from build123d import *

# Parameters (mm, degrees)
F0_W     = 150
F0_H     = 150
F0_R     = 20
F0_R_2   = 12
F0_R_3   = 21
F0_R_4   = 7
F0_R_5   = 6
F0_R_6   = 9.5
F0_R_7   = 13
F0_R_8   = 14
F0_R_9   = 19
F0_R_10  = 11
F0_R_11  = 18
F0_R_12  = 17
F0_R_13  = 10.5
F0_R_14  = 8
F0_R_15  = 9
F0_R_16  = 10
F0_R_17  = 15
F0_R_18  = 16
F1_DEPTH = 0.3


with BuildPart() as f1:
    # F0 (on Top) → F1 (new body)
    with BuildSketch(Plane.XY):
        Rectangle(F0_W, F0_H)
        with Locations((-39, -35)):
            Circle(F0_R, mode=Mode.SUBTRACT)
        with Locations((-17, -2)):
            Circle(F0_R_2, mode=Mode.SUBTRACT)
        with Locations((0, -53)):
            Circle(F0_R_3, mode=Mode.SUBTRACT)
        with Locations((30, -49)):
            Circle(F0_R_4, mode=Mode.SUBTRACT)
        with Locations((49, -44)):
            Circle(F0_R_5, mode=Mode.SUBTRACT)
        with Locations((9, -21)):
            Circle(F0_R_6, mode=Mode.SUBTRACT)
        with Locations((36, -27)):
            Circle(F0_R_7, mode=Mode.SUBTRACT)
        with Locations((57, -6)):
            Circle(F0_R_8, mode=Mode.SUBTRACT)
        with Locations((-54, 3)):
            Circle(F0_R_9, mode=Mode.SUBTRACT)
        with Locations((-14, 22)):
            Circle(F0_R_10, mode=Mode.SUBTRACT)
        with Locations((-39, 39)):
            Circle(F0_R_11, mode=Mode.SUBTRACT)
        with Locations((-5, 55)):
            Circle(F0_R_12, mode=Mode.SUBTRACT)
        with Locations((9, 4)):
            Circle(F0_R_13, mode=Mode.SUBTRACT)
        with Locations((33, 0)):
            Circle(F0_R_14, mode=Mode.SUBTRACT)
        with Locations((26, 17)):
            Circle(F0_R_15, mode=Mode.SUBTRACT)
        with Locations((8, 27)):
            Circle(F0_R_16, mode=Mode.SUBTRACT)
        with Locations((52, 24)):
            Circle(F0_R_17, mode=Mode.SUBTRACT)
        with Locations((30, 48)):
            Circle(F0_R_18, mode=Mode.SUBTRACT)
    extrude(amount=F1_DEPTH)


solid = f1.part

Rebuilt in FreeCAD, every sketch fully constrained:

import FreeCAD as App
import Part
import Sketcher
from FreeCAD import Vector
Q = App.Units.Quantity

doc = App.newDocument("Part")
body = doc.addObject("PartDesign::Body", "Body")

# Sketch on XY plane
sketch1 = doc.addObject("Sketcher::SketchObject", "Sketch")
body.addObject(sketch1)
sketch1.AttachmentSupport = (doc.XY_Plane, [""])
sketch1.MapMode = "FlatFace"
sketch1.addGeometry([
    Part.LineSegment(Vector(-75, 75, 0), Vector(-75, -75, 0)),  # 0
    Part.LineSegment(Vector(-75, -75, 0), Vector(75, -75, 0)),  # 1
    Part.LineSegment(Vector(75, -75, 0), Vector(75, 75, 0)),  # 2
    Part.LineSegment(Vector(75, 75, 0), Vector(-75, 75, 0)),  # 3
    Part.Circle(Vector(-39, -35, 0), Vector(0, 0, 1), 20),  # 4
    Part.Circle(Vector(-17, -2, 0), Vector(0, 0, 1), 12),  # 5
    Part.Circle(Vector(0, -53, 0), Vector(0, 0, 1), 21),  # 6
    Part.Circle(Vector(30, -49, 0), Vector(0, 0, 1), 7),  # 7
    Part.Circle(Vector(49, -44, 0), Vector(0, 0, 1), 6),  # 8
    Part.Circle(Vector(9, -21, 0), Vector(0, 0, 1), 9.5),  # 9
    Part.Circle(Vector(36, -27, 0), Vector(0, 0, 1), 13),  # 10
    Part.Circle(Vector(57, -6, 0), Vector(0, 0, 1), 14),  # 11
    Part.Circle(Vector(-54, 3, 0), Vector(0, 0, 1), 19),  # 12
    Part.Circle(Vector(-14, 22, 0), Vector(0, 0, 1), 11),  # 13
    Part.Circle(Vector(-39, 39, 0), Vector(0, 0, 1), 18),  # 14
    Part.Circle(Vector(-5, 55, 0), Vector(0, 0, 1), 17),  # 15
    Part.Circle(Vector(9, 4, 0), Vector(0, 0, 1), 10.5),  # 16
    Part.Circle(Vector(33, 0, 0), Vector(0, 0, 1), 8),  # 17
    Part.Circle(Vector(26, 17, 0), Vector(0, 0, 1), 9),  # 18
    Part.Circle(Vector(8, 27, 0), Vector(0, 0, 1), 10),  # 19
    Part.Circle(Vector(52, 24, 0), Vector(0, 0, 1), 15),  # 20
    Part.Circle(Vector(30, 48, 0), Vector(0, 0, 1), 16),  # 21
], False)
sketch1.addConstraint([
    Sketcher.Constraint("Coincident", 0, 2, 1, 1),
    Sketcher.Constraint("Coincident", 1, 2, 2, 1),
    Sketcher.Constraint("Coincident", 2, 2, 3, 1),
    Sketcher.Constraint("Coincident", 3, 2, 0, 1),
    Sketcher.Constraint("Vertical", 0),
    Sketcher.Constraint("Horizontal", 1),
    Sketcher.Constraint("Vertical", 2),
    Sketcher.Constraint("Horizontal", 3),
    Sketcher.Constraint("Symmetric", 0, 2, 2, 2, -1, 1),
    Sketcher.Constraint("PointOnObject", 6, 3, -2),
    Sketcher.Constraint("PointOnObject", 17, 3, -1),
    Sketcher.Constraint("Vertical", 4, 3, 14, 3),
    Sketcher.Constraint("Vertical", 9, 3, 16, 3),
    Sketcher.Constraint("Vertical", 7, 3, 21, 3),
    Sketcher.Constraint("Equal", 3, 0),
    Sketcher.Constraint("Diameter", 4, Q("40 mm")),
    Sketcher.Constraint("Diameter", 5, Q("24 mm")),
    Sketcher.Constraint("Diameter", 6, Q("42 mm")),
    Sketcher.Constraint("Diameter", 7, Q("14 mm")),
    Sketcher.Constraint("Diameter", 8, Q("12 mm")),
    Sketcher.Constraint("Diameter", 9, Q("19 mm")),
    Sketcher.Constraint("Diameter", 10, Q("26 mm")),
    Sketcher.Constraint("Diameter", 11, Q("28 mm")),
    Sketcher.Constraint("Diameter", 12, Q("38 mm")),
    Sketcher.Constraint("Diameter", 13, Q("22 mm")),
    Sketcher.Constraint("Diameter", 14, Q("36 mm")),
    Sketcher.Constraint("Diameter", 15, Q("34 mm")),
    Sketcher.Constraint("Diameter", 16, Q("21 mm")),
    Sketcher.Constraint("Diameter", 17, Q("16 mm")),
    Sketcher.Constraint("Diameter", 18, Q("18 mm")),
    Sketcher.Constraint("Diameter", 19, Q("20 mm")),
    Sketcher.Constraint("Diameter", 20, Q("30 mm")),
    Sketcher.Constraint("Diameter", 21, Q("32 mm")),
    Sketcher.Constraint("DistanceX", 1, 1, 1, 2, Q("150 mm")),
    Sketcher.Constraint("DistanceX", 4, 3, -1, 1, Q("39 mm")),
    Sketcher.Constraint("DistanceY", 4, 3, -1, 1, Q("35 mm")),
    Sketcher.Constraint("DistanceX", 5, 3, -1, 1, Q("17 mm")),
    Sketcher.Constraint("DistanceY", 5, 3, -1, 1, Q("2 mm")),
    Sketcher.Constraint("DistanceY", 6, 3, -1, 1, Q("53 mm")),
    Sketcher.Constraint("DistanceX", -1, 1, 7, 3, Q("30 mm")),
    Sketcher.Constraint("DistanceY", 7, 3, -1, 1, Q("49 mm")),
    Sketcher.Constraint("DistanceX", -1, 1, 8, 3, Q("49 mm")),
    Sketcher.Constraint("DistanceY", 8, 3, -1, 1, Q("44 mm")),
    Sketcher.Constraint("DistanceX", -1, 1, 9, 3, Q("9 mm")),
    Sketcher.Constraint("DistanceY", 9, 3, -1, 1, Q("21 mm")),
    Sketcher.Constraint("DistanceX", -1, 1, 10, 3, Q("36 mm")),
    Sketcher.Constraint("DistanceY", 10, 3, -1, 1, Q("27 mm")),
    Sketcher.Constraint("DistanceX", -1, 1, 11, 3, Q("57 mm")),
    Sketcher.Constraint("DistanceY", 11, 3, -1, 1, Q("6 mm")),
    Sketcher.Constraint("DistanceX", 12, 3, -1, 1, Q("54 mm")),
    Sketcher.Constraint("DistanceY", -1, 1, 12, 3, Q("3 mm")),
    Sketcher.Constraint("DistanceX", 13, 3, -1, 1, Q("14 mm")),
    Sketcher.Constraint("DistanceY", -1, 1, 13, 3, Q("22 mm")),
    Sketcher.Constraint("DistanceY", -1, 1, 14, 3, Q("39 mm")),
    Sketcher.Constraint("DistanceX", 15, 3, -1, 1, Q("5 mm")),
    Sketcher.Constraint("DistanceY", -1, 1, 15, 3, Q("55 mm")),
    Sketcher.Constraint("DistanceY", -1, 1, 16, 3, Q("4 mm")),
    Sketcher.Constraint("DistanceX", -1, 1, 17, 3, Q("33 mm")),
    Sketcher.Constraint("DistanceX", -1, 1, 18, 3, Q("26 mm")),
    Sketcher.Constraint("DistanceY", -1, 1, 18, 3, Q("17 mm")),
    Sketcher.Constraint("DistanceX", -1, 1, 19, 3, Q("8 mm")),
    Sketcher.Constraint("DistanceY", -1, 1, 19, 3, Q("27 mm")),
    Sketcher.Constraint("DistanceX", -1, 1, 20, 3, Q("52 mm")),
    Sketcher.Constraint("DistanceY", -1, 1, 20, 3, Q("24 mm")),
    Sketcher.Constraint("DistanceY", -1, 1, 21, 3, Q("48 mm")),
])
pad1 = doc.addObject("PartDesign::Pad", "Pad")
body.addObject(pad1)
pad1.Profile = sketch1
pad1.Length = 0.3

doc.recompute()
